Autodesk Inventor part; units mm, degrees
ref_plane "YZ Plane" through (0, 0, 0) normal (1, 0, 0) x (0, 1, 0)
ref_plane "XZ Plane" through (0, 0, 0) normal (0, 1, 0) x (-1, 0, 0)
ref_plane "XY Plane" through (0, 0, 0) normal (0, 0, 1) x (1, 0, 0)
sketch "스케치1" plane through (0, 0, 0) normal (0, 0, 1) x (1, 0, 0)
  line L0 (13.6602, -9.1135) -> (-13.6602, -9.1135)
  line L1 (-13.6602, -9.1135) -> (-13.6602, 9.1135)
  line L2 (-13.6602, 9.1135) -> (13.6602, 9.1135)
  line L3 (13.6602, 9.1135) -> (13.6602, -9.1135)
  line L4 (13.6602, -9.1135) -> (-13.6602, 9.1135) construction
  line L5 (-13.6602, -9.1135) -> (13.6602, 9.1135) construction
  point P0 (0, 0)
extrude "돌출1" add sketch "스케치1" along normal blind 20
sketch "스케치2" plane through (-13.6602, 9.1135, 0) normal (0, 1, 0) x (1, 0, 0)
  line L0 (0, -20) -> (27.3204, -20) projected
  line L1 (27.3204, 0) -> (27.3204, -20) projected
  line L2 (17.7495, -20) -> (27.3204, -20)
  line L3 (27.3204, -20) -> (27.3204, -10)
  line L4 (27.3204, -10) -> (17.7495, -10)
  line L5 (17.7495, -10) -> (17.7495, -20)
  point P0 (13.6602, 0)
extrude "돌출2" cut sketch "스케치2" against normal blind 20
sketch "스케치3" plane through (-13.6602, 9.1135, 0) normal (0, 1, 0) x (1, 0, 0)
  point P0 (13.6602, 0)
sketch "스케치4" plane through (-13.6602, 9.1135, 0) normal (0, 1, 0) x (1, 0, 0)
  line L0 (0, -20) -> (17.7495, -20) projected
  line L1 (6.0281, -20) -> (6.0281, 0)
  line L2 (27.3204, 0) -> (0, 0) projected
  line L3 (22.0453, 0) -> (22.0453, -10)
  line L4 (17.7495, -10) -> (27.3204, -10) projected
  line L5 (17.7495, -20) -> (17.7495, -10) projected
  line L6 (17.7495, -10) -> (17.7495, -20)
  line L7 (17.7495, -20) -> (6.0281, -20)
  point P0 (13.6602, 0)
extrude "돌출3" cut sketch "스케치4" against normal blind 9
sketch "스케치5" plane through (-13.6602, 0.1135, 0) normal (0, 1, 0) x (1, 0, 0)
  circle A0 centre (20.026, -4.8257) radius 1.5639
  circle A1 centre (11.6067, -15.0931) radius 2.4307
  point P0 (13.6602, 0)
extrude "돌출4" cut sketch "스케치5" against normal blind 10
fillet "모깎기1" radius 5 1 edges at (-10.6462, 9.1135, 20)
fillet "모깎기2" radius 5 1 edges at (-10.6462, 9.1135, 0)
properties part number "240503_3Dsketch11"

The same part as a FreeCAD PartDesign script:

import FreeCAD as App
import Part
import Sketcher
from FreeCAD import Vector
Q = App.Units.Quantity


def edges_at(feature, points):
    """Names of the edges that pass closest to the given points."""
    edges = feature.Shape.Edges
    near = lambda p: min(range(len(edges)), key=lambda i: edges[i].distToShape(Part.Vertex(*p))[0])
    return sorted({f"Edge{near(p) + 1}" for p in points})


def add_polygon(sketch, points):
    """Adds a closed chain of lines whose ends are joined by coincident constraints."""
    first, n = sketch.GeometryCount, len(points)
    for a, b in zip(points, points[1:] + points[:1]):
        sketch.addGeometry(Part.LineSegment(App.Vector(*a, 0), App.Vector(*b, 0)), False)
    for i in range(n):
        sketch.addConstraint(Sketcher.Constraint("Coincident", first + i, 2, first + (i + 1) % n, 1))

doc = App.newDocument("Part")
body = doc.addObject("PartDesign::Body", "Body")

sketch1 = body.newObject("Sketcher::SketchObject", "Sketch")
sketch1.AttachmentSupport = (doc.getObject("XY_Plane"), [""])
sketch1.MapMode = "FlatFace"
add_polygon(sketch1, [(-14, -9), (14, -9), (14, 9), (-14, 9)])
sketch1.addConstraint([
    Sketcher.Constraint("Horizontal", 0),
    Sketcher.Constraint("Vertical", 1),
    Sketcher.Constraint("Horizontal", 2),
    Sketcher.Constraint("Vertical", 3),
    Sketcher.Constraint("Symmetric", 0, 2, 2, 2, -1, 1),
    Sketcher.Constraint("DistanceY", 1, 1, 1, 2, Q("18.227 mm")),
    Sketcher.Constraint("DistanceX", 0, 1, 0, 2, Q("27.3204 mm")),
])
pad1 = body.newObject("PartDesign::Pad", "Pad")
pad1.Profile = sketch1
pad1.Length = 20

sketch2 = body.newObject("Sketcher::SketchObject", "Sketch001")
sketch2.AttachmentSupport = (doc.getObject("XZ_Plane"), [""])
sketch2.MapMode = "FlatFace"
sketch2.AttachmentOffset = App.Placement(Vector(0, 0, -9.1135), App.Rotation())
add_polygon(sketch2, [(4, 10), (4, 20), (14, 20), (14, 10)])
sketch2.addConstraint([
    Sketcher.Constraint("Vertical", 0),
    Sketcher.Constraint("Horizontal", 1),
    Sketcher.Constraint("Vertical", 2),
    Sketcher.Constraint("Horizontal", 3),
    Sketcher.Constraint("DistanceY", 0, 1, 0, 2, Q("10 mm")),
    Sketcher.Constraint("DistanceY", -1, 1, 0, 2, Q("20 mm")),
    Sketcher.Constraint("DistanceX", 1, 1, 1, 2, Q("9.571 mm")),
    Sketcher.Constraint("DistanceX", -1, 1, 0, 2, Q("4.0893 mm")),
])
pocket1 = body.newObject("PartDesign::Pocket", "Pocket")
pocket1.Profile = sketch2
pocket1.Length = 20
pocket1.Reversed = True

sketch3 = body.newObject("Sketcher::SketchObject", "Sketch002")
sketch3.AttachmentSupport = (doc.getObject("XZ_Plane"), [""])
sketch3.MapMode = "FlatFace"
sketch3.AttachmentOffset = App.Placement(Vector(0, 0, -9.1135), App.Rotation())
add_polygon(sketch3, [(-7.6, 0), (-7.6, 20), (4.1, 20), (4.1, 10), (8.4, 10), (8.4, 0)])
sketch3.addConstraint([
    Sketcher.Constraint("Vertical", 0),
    Sketcher.Constraint("Horizontal", 1),
    Sketcher.Constraint("Vertical", 2),
    Sketcher.Constraint("Horizontal", 3),
    Sketcher.Constraint("Vertical", 4),
    Sketcher.Constraint("Horizontal", 5),
    Sketcher.Constraint("PointOnObject", 4, 2, -1),
    Sketcher.Constraint("Equal", 2, 4),
    Sketcher.Constraint("DistanceY", 0, 1, 0, 2, Q("20 mm")),
    Sketcher.Constraint("DistanceX", 1, 1, 1, 2, Q("11.7214 mm")),
    Sketcher.Constraint("DistanceX", 3, 1, 3, 2, Q("4.2958 mm")),
    Sketcher.Constraint("DistanceX", 0, 2, -1, 1, Q("7.632 mm")),
])
pocket2 = body.newObject("PartDesign::Pocket", "Pocket001")
pocket2.Profile = sketch3
pocket2.Length = 9
pocket2.Reversed = True

sketch4 = body.newObject("Sketcher::SketchObject", "Sketch003")
sketch4.AttachmentSupport = (doc.getObject("XZ_Plane"), [""])
sketch4.MapMode = "FlatFace"
sketch4.AttachmentOffset = App.Placement(Vector(0, 0, -0.1135), App.Rotation())
sketch4.addGeometry([
    Part.Circle(Vector(6.4, 4.8, 0), Vector(0, 0, 1), 1.6),
    Part.Circle(Vector(-2.1, 15.1, 0), Vector(0, 0, 1), 2.4),
], False)
sketch4.addConstraint([
    Sketcher.Constraint("Diameter", 0, Q("3.1278 mm")),
    Sketcher.Constraint("Diameter", 1, Q("4.8614 mm")),
    Sketcher.Constraint("DistanceY", -1, 1, 1, 3, Q("15.093 mm")),
    Sketcher.Constraint("DistanceX", -1, 1, 0, 3, Q("6.3658 mm")),
    Sketcher.Constraint("DistanceY", -1, 1, 0, 3, Q("4.8257 mm")),
    Sketcher.Constraint("DistanceX", 1, 3, -1, 1, Q("2.0535 mm")),
])
pocket3 = body.newObject("PartDesign::Pocket", "Pocket002")
pocket3.Profile = sketch4
pocket3.Length = 10
pocket3.Reversed = True
doc.recompute()

fillet = body.newObject("PartDesign::Fillet", "Fillet")
fillet.Base = (pocket3, edges_at(pocket3, [(-10.646, 9.114, 20)]))
fillet.Radius = 5
doc.recompute()

fillet2 = body.newObject("PartDesign::Fillet", "Fillet001")
fillet2.Base = (fillet, edges_at(fillet, [(-10.646, 9.114, 0)]))
fillet2.Radius = 5

doc.recompute()
